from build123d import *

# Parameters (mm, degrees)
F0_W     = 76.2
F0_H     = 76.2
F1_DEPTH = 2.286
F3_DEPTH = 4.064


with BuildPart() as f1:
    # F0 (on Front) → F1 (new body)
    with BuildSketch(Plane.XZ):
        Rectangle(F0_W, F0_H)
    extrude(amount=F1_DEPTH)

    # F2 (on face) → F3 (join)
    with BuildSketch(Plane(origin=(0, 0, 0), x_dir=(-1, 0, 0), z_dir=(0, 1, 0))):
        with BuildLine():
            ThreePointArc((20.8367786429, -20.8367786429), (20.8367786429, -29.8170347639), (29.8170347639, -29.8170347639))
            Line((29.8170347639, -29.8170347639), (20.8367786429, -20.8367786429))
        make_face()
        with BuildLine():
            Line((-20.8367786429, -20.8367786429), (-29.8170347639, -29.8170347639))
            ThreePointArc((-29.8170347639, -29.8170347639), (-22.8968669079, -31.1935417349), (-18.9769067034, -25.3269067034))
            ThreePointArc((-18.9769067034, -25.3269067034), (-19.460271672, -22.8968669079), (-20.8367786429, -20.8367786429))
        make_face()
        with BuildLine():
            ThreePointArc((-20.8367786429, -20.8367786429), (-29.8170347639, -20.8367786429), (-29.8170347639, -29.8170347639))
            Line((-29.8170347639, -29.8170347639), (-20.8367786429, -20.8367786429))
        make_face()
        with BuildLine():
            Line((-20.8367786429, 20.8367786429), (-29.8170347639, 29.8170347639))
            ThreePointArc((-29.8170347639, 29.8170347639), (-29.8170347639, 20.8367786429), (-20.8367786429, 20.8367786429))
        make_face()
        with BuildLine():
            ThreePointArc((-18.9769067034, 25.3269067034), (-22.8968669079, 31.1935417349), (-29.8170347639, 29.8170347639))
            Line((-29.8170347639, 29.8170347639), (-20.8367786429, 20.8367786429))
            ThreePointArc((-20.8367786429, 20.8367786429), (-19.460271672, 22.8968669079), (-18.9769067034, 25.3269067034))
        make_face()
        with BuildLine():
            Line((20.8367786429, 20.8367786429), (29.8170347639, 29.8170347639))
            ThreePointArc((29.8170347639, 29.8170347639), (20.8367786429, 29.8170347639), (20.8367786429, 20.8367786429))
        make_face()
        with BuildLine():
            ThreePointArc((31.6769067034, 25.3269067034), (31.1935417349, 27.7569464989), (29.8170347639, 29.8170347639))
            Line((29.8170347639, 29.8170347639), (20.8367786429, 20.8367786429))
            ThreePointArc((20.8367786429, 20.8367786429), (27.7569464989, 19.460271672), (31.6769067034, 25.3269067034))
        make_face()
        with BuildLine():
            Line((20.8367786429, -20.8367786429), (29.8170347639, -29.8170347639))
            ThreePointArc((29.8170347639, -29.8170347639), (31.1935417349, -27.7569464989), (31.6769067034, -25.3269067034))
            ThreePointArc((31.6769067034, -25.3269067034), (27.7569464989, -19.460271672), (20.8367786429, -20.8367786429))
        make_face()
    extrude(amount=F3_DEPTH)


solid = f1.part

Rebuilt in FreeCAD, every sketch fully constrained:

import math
import FreeCAD as App
import Part
import Sketcher

V = App.Vector
Q = App.Units.Quantity


def add_polygon(sketch, points):
    """Adds a closed chain of lines whose ends are joined by coincident constraints."""
    first, n = sketch.GeometryCount, len(points)
    for a, b in zip(points, points[1:] + points[:1]):
        sketch.addGeometry(Part.LineSegment(App.Vector(*a, 0), App.Vector(*b, 0)), False)
    for i in range(n):
        sketch.addConstraint(Sketcher.Constraint("Coincident", first + i, 2, first + (i + 1) % n, 1))

doc = App.newDocument("Part")
params = doc.addObject("Spreadsheet::Sheet", "Params")
for row, (alias, value) in enumerate([
    ("sketch1_width", "3 in"),
    ("pad1_length", "0.09 in"),
    ("sketch2_radius", "0.25 in"),
    ("pad2_length", "0.16 in"),
], start=1):
    params.set(f"A{row}", alias)
    params.set(f"B{row}", "=" + value)
    params.setAlias(f"B{row}", alias)

body = doc.addObject("PartDesign::Body", "Body")

# Sketch on XZ plane
sketch1 = body.newObject("Sketcher::SketchObject", "Sketch")
sketch1.AttachmentSupport = (doc.getObject("XZ_Plane"), [""])
sketch1.MapMode = "FlatFace"
add_polygon(sketch1, [(-38.1, 38.1), (-38.1, -38.1), (38.1, -38.1), (38.1, 38.1)])  # lines 0-3
sketch1.addConstraint([
    Sketcher.Constraint("Vertical", 0),
    Sketcher.Constraint("Horizontal", 1),
    Sketcher.Constraint("Vertical", 2),
    Sketcher.Constraint("Horizontal", 3),
    Sketcher.Constraint("Symmetric", 0, 2, 2, 2, -1, 1),
    Sketcher.Constraint("Equal", 3, 0),
    Sketcher.Constraint("DistanceX", 1, 1, 1, 2, Q("3 in")),
])
sketch1.setExpression("Constraints[10]", "Params.sketch1_width")
pad1 = body.newObject("PartDesign::Pad", "Pad")
pad1.Profile = sketch1
pad1.setExpression("Length", "Params.pad1_length")

# Sketch on XZ plane
sketch2 = body.newObject("Sketcher::SketchObject", "Sketch001")
sketch2.AttachmentSupport = (doc.getObject("XZ_Plane"), [""])
sketch2.MapMode = "FlatFace"
sketch2.addGeometry([
    Part.ArcOfCircle(Part.Circle(V(-25.326907, -25.326907, 0), V(0, 0, 1), 6.35), math.radians(-135), math.radians(45)),  # 0
    Part.ArcOfCircle(Part.Circle(V(-25.326907, -25.326907, 0), V(0, 0, 1), 6.35), math.radians(180), math.radians(225)),  # 1
    Part.ArcOfCircle(Part.Circle(V(-25.326907, -25.326907, 0), V(0, 0, 1), 6.35), math.radians(45), math.radians(180)),  # 2
    Part.ArcOfCircle(Part.Circle(V(25.326907, -25.326907, 0), V(0, 0, 1), 6.35), math.radians(180), math.radians(315)),  # 3
    Part.ArcOfCircle(Part.Circle(V(25.326907, -25.326907, 0), V(0, 0, 1), 6.35), math.radians(135), math.radians(180)),  # 4
    Part.ArcOfCircle(Part.Circle(V(25.326907, -25.326907, 0), V(0, 0, 1), 6.35), math.radians(-45), math.radians(135)),  # 5
    Part.ArcOfCircle(Part.Circle(V(25.326907, 25.326907, 0), V(0, 0, 1), 6.35), math.radians(-135), math.radians(45)),  # 6
    Part.ArcOfCircle(Part.Circle(V(25.326907, 25.326907, 0), V(0, 0, 1), 6.35), math.radians(-180), math.radians(-135)),  # 7
    Part.ArcOfCircle(Part.Circle(V(25.326907, 25.326907, 0), V(0, 0, 1), 6.35), math.radians(45), math.radians(180)),  # 8
    Part.ArcOfCircle(Part.Circle(V(-25.326907, 25.326907, 0), V(0, 0, 1), 6.35), math.radians(-45), math.radians(135)),  # 9
    Part.ArcOfCircle(Part.Circle(V(-25.326907, 25.326907, 0), V(0, 0, 1), 6.35), math.radians(180), math.radians(315)),  # 10
    Part.ArcOfCircle(Part.Circle(V(-25.326907, 25.326907, 0), V(0, 0, 1), 6.35), math.radians(135), math.radians(180)),  # 11
], False)
sketch2.addConstraint([
    Sketcher.Constraint("Tangent", 0, 1, 1, 2),
    Sketcher.Constraint("Tangent", 1, 1, 2, 2),
    Sketcher.Constraint("Tangent", 2, 1, 0, 2),
    Sketcher.Constraint("Tangent", 3, 1, 4, 2),
    Sketcher.Constraint("Tangent", 4, 1, 5, 2),
    Sketcher.Constraint("Tangent", 5, 1, 3, 2),
    Sketcher.Constraint("Tangent", 6, 1, 7, 2),
    Sketcher.Constraint("Tangent", 7, 1, 8, 2),
    Sketcher.Constraint("Tangent", 8, 1, 6, 2),
    Sketcher.Constraint("Tangent", 9, 1, 10, 2),
    Sketcher.Constraint("Tangent", 10, 1, 11, 2),
    Sketcher.Constraint("Tangent", 11, 1, 9, 2),
    Sketcher.Constraint("Equal", 2, 3),
    Sketcher.Constraint("Equal", 5, 6),
    Sketcher.Constraint("Equal", 8, 9),
    Sketcher.Constraint("Symmetric", 0, 3, 6, 3, -1, 1),
    Sketcher.Constraint("Symmetric", 3, 3, 9, 3, -1, 1),
    Sketcher.Constraint("Symmetric", 0, 3, 3, 3, -2),
    Sketcher.Constraint("Horizontal", 5, 3, 1, 1),
    Sketcher.Constraint("Horizontal", 1, 1, 3, 1),
    Sketcher.Constraint("Horizontal", 2, 1, 4, 1),
    Sketcher.Constraint("Horizontal", 0, 1, 5, 1),
    Sketcher.Constraint("Horizontal", 11, 3, 7, 1),
    Sketcher.Constraint("Horizontal", 6, 1, 9, 1),
    Sketcher.Constraint("Horizontal", 7, 1, 10, 1),
    Sketcher.Constraint("Horizontal", 8, 1, 11, 1),
    Sketcher.Constraint("Vertical", 4, 1, 6, 1),
    Sketcher.Constraint("Vertical", 5, 1, 8, 1),
    Sketcher.Constraint("Radius", 0, Q("0.25 in")),
    Sketcher.Constraint("DistanceX", 2, 1, -1, 1, Q("20.836779 mm")),
    Sketcher.Constraint("DistanceY", 2, 1, -1, 1, Q("20.836779 mm")),
    Sketcher.Constraint("DistanceX", 0, 1, 1, 3, Q("4.490128 mm")),
    Sketcher.Constraint("DistanceX", 0, 1, 3, 3, Q("55.143941 mm")),
])
sketch2.setExpression("Constraints[28]", "Params.sketch2_radius")
pad2 = body.newObject("PartDesign::Pad", "Pad001")
pad2.Profile = sketch2
pad2.setExpression("Length", "Params.pad2_length")
pad2.Reversed = True

doc.recompute()
